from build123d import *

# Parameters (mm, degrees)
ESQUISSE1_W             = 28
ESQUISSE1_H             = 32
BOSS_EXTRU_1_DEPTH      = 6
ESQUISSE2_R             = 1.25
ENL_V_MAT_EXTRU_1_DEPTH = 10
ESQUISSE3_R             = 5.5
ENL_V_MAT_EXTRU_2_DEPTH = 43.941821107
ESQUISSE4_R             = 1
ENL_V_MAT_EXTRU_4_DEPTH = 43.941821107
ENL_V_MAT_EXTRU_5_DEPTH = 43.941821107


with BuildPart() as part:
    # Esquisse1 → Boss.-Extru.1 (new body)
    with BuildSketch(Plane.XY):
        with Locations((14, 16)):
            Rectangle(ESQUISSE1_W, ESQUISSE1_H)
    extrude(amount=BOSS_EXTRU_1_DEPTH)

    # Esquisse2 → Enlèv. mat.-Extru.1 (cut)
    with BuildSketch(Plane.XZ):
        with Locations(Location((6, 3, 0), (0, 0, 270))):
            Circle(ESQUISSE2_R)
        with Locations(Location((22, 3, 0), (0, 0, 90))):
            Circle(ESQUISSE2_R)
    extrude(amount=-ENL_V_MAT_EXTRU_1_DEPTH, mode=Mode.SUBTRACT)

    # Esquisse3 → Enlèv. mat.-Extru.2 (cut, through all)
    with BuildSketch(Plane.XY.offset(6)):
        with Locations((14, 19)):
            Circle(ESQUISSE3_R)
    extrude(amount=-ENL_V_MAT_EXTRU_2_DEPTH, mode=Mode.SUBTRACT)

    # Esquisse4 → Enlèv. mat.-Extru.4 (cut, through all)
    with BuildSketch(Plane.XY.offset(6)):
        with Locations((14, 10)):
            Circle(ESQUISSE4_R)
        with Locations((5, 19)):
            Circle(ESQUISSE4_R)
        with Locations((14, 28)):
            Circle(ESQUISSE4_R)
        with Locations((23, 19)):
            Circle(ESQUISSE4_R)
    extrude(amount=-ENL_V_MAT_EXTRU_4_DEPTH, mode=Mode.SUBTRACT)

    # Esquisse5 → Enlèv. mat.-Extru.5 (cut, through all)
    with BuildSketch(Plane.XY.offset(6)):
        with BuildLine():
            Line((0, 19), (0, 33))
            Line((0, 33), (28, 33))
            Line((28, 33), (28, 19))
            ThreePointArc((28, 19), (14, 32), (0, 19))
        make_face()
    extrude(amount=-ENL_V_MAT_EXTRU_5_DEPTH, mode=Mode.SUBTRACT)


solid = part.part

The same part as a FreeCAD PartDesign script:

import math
import FreeCAD as App
import Part
import Sketcher
from FreeCAD import Vector
Q = App.Units.Quantity


def add_polygon(sketch, points):
    """Adds a closed chain of lines whose ends are joined by coincident constraints."""
    first, n = sketch.GeometryCount, len(points)
    for a, b in zip(points, points[1:] + points[:1]):
        sketch.addGeometry(Part.LineSegment(App.Vector(*a, 0), App.Vector(*b, 0)), False)
    for i in range(n):
        sketch.addConstraint(Sketcher.Constraint("Coincident", first + i, 2, first + (i + 1) % n, 1))

doc = App.newDocument("Part")
body = doc.addObject("PartDesign::Body", "Body")

sketch1 = doc.addObject("Sketcher::SketchObject", "Sketch")
body.addObject(sketch1)
sketch1.AttachmentSupport = (doc.XY_Plane, [""])
sketch1.MapMode = "FlatFace"
add_polygon(sketch1, [(0, 32), (0, 0), (28, 0), (28, 32)])
sketch1.addConstraint(Sketcher.Constraint("Vertical", 0))
sketch1.addConstraint(Sketcher.Constraint("Horizontal", 1))
sketch1.addConstraint(Sketcher.Constraint("Vertical", 2))
sketch1.addConstraint(Sketcher.Constraint("Horizontal", 3))
sketch1.addConstraint(Sketcher.Constraint("Coincident", 0, 2, -1, 1))
sketch1.addConstraint(Sketcher.Constraint("DistanceX", 1, 1, 1, 2, Q("28 mm")))
sketch1.addConstraint(Sketcher.Constraint("DistanceY", 0, 2, 0, 1, Q("32 mm")))
pad1 = doc.addObject("PartDesign::Pad", "Pad")
body.addObject(pad1)
pad1.Profile = sketch1
pad1.Length = 6

sketch2 = doc.addObject("Sketcher::SketchObject", "Sketch001")
body.addObject(sketch2)
sketch2.AttachmentSupport = (doc.XZ_Plane, [""])
sketch2.MapMode = "FlatFace"
sketch2.addGeometry(Part.Circle(Vector(6, 3, 0), Vector(0, 0, 1), 1.25), False)
sketch2.addGeometry(Part.Circle(Vector(22, 3, 0), Vector(0, 0, 1), 1.25), False)
sketch2.addConstraint(Sketcher.Constraint("Equal", 0, 1))
sketch2.addConstraint(Sketcher.Constraint("Horizontal", 0, 3, 1, 3))
sketch2.addConstraint(Sketcher.Constraint("Diameter", 0, Q("2.5 mm")))
sketch2.addConstraint(Sketcher.Constraint("DistanceX", -1, 1, 0, 3, Q("6 mm")))
sketch2.addConstraint(Sketcher.Constraint("DistanceY", -1, 1, 0, 3, Q("3 mm")))
sketch2.addConstraint(Sketcher.Constraint("DistanceX", -1, 1, 1, 3, Q("22 mm")))
pocket1 = doc.addObject("PartDesign::Pocket", "Pocket")
body.addObject(pocket1)
pocket1.Profile = sketch2
pocket1.Length = 10

sketch3 = doc.addObject("Sketcher::SketchObject", "Sketch002")
body.addObject(sketch3)
sketch3.AttachmentSupport = (doc.XY_Plane, [""])
sketch3.MapMode = "FlatFace"
sketch3.AttachmentOffset = App.Placement(Vector(0, 0, 6), App.Rotation())
sketch3.addGeometry(Part.Circle(Vector(14, 19, 0), Vector(0, 0, 1), 5.5), False)
sketch3.addConstraint(Sketcher.Constraint("Diameter", 0, Q("11 mm")))
sketch3.addConstraint(Sketcher.Constraint("DistanceX", -1, 1, 0, 3, Q("14 mm")))
sketch3.addConstraint(Sketcher.Constraint("DistanceY", -1, 1, 0, 3, Q("19 mm")))
pocket2 = doc.addObject("PartDesign::Pocket", "Pocket001")
body.addObject(pocket2)
pocket2.Profile = sketch3
pocket2.Type = "ThroughAll"

sketch4 = doc.addObject("Sketcher::SketchObject", "Sketch003")
body.addObject(sketch4)
sketch4.AttachmentSupport = (doc.XY_Plane, [""])
sketch4.MapMode = "FlatFace"
sketch4.AttachmentOffset = App.Placement(Vector(0, 0, 6), App.Rotation())
sketch4.addGeometry(Part.Circle(Vector(14, 10, 0), Vector(0, 0, 1), 1), False)
sketch4.addGeometry(Part.Circle(Vector(5, 19, 0), Vector(0, 0, 1), 1), False)
sketch4.addGeometry(Part.Circle(Vector(14, 28, 0), Vector(0, 0, 1), 1), False)
sketch4.addGeometry(Part.Circle(Vector(23, 19, 0), Vector(0, 0, 1), 1), False)
sketch4.addConstraint(Sketcher.Constraint("Equal", 0, 1))
sketch4.addConstraint(Sketcher.Constraint("Equal", 1, 2))
sketch4.addConstraint(Sketcher.Constraint("Equal", 2, 3))
sketch4.addConstraint(Sketcher.Constraint("Horizontal", 1, 3, 3, 3))
sketch4.addConstraint(Sketcher.Constraint("Vertical", 0, 3, 2, 3))
sketch4.addConstraint(Sketcher.Constraint("Diameter", 0, Q("2 mm")))
sketch4.addConstraint(Sketcher.Constraint("DistanceX", -1, 1, 0, 3, Q("14 mm")))
sketch4.addConstraint(Sketcher.Constraint("DistanceY", -1, 1, 0, 3, Q("10 mm")))
sketch4.addConstraint(Sketcher.Constraint("DistanceX", -1, 1, 1, 3, Q("5 mm")))
sketch4.addConstraint(Sketcher.Constraint("DistanceY", -1, 1, 1, 3, Q("19 mm")))
sketch4.addConstraint(Sketcher.Constraint("DistanceY", -1, 1, 2, 3, Q("28 mm")))
sketch4.addConstraint(Sketcher.Constraint("DistanceX", -1, 1, 3, 3, Q("23 mm")))
pocket3 = doc.addObject("PartDesign::Pocket", "Pocket002")
body.addObject(pocket3)
pocket3.Profile = sketch4
pocket3.Type = "ThroughAll"

sketch5 = doc.addObject("Sketcher::SketchObject", "Sketch004")
body.addObject(sketch5)
sketch5.AttachmentSupport = (doc.XY_Plane, [""])
sketch5.MapMode = "FlatFace"
sketch5.AttachmentOffset = App.Placement(Vector(0, 0, 6), App.Rotation())
sketch5.addGeometry(Part.LineSegment(Vector(0, 33, 0), Vector(0, 19, 0)), False)
sketch5.addGeometry(Part.ArcOfCircle(Part.Circle(Vector(14, 17.961538, 0), Vector(0, 0, 1), 14.038462), math.radians(4.242193), math.radians(175.757807)), False)
sketch5.addGeometry(Part.LineSegment(Vector(28, 19, 0), Vector(28, 33, 0)), False)
sketch5.addGeometry(Part.LineSegment(Vector(28, 33, 0), Vector(0, 33, 0)), False)
sketch5.addConstraint(Sketcher.Constraint("Coincident", 0, 2, 1, 2))
sketch5.addConstraint(Sketcher.Constraint("Coincident", 1, 1, 2, 1))
sketch5.addConstraint(Sketcher.Constraint("Coincident", 2, 2, 3, 1))
sketch5.addConstraint(Sketcher.Constraint("Coincident", 3, 2, 0, 1))
sketch5.addConstraint(Sketcher.Constraint("Vertical", 0))
sketch5.addConstraint(Sketcher.Constraint("Vertical", 2))
sketch5.addConstraint(Sketcher.Constraint("Horizontal", 3))
sketch5.addConstraint(Sketcher.Constraint("PointOnObject", 0, 2, -2))
sketch5.addConstraint(Sketcher.Constraint("Horizontal", 0, 2, 1, 1))
sketch5.addConstraint(Sketcher.Constraint("DistanceX", 3, 2, 3, 1, Q("28 mm")))
sketch5.addConstraint(Sketcher.Constraint("DistanceY", 0, 2, 0, 1, Q("14 mm")))
sketch5.addConstraint(Sketcher.Constraint("DistanceY", -1, 1, 0, 2, Q("19 mm")))
sketch5.addConstraint(Sketcher.Constraint("Radius", 1, Q("14.038462 mm")))
pocket4 = doc.addObject("PartDesign::Pocket", "Pocket003")
body.addObject(pocket4)
pocket4.Profile = sketch5
pocket4.Type = "ThroughAll"

doc.recompute()
